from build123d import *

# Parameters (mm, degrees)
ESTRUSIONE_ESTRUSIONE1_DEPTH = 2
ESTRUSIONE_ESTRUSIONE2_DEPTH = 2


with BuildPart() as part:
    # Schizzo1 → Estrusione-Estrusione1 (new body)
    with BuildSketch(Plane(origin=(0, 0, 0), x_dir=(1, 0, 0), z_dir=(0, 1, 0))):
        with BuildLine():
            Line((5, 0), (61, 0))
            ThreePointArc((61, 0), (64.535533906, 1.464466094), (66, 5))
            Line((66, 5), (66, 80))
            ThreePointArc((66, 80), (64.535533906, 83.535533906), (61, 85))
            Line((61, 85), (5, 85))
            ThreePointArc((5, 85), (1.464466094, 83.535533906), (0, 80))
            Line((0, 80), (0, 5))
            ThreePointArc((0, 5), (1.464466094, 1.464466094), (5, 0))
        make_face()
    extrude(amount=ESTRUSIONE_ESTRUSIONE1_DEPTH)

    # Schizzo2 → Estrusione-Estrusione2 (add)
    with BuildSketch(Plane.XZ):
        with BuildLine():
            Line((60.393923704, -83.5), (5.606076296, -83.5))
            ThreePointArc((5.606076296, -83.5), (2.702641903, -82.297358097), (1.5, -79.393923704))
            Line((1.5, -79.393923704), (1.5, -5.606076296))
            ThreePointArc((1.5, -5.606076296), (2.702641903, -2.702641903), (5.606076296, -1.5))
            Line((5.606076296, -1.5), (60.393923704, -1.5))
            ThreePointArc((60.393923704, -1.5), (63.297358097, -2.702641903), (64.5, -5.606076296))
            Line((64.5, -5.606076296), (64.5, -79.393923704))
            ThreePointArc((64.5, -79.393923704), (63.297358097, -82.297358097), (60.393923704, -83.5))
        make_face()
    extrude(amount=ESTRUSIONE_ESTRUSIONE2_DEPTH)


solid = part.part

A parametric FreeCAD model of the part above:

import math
import FreeCAD as App
import Part
import Sketcher

V = App.Vector
Q = App.Units.Quantity

doc = App.newDocument("Part")
body = doc.addObject("PartDesign::Body", "Body")

# Sketch on XZ plane
sketch1 = doc.addObject("Sketcher::SketchObject", "Sketch")
body.addObject(sketch1)
sketch1.AttachmentSupport = (doc.XZ_Plane, [""])
sketch1.MapMode = "FlatFace"
sketch1.addGeometry([
    Part.LineSegment(V(5, 0, 0), V(61, 0, 0)),  # 0
    Part.ArcOfCircle(Part.Circle(V(61, -5, 0), V(0, 0, 1), 5), math.radians(0), math.radians(90)),  # 1
    Part.LineSegment(V(66, -5, 0), V(66, -80, 0)),  # 2
    Part.ArcOfCircle(Part.Circle(V(61, -80, 0), V(0, 0, 1), 5), math.radians(-90), math.radians(0)),  # 3
    Part.LineSegment(V(61, -85, 0), V(5, -85, 0)),  # 4
    Part.ArcOfCircle(Part.Circle(V(5, -80, 0), V(0, 0, 1), 5), math.radians(180), math.radians(270)),  # 5
    Part.LineSegment(V(0, -80, 0), V(0, -5, 0)),  # 6
    Part.ArcOfCircle(Part.Circle(V(5, -5, 0), V(0, 0, 1), 5), math.radians(90), math.radians(180)),  # 7
], False)
sketch1.addConstraint([
    Sketcher.Constraint("Tangent", 0, 2, 1, 2),
    Sketcher.Constraint("Tangent", 1, 1, 2, 1),
    Sketcher.Constraint("Tangent", 2, 2, 3, 2),
    Sketcher.Constraint("Tangent", 3, 1, 4, 1),
    Sketcher.Constraint("Tangent", 4, 2, 5, 2),
    Sketcher.Constraint("Tangent", 5, 1, 6, 1),
    Sketcher.Constraint("Tangent", 6, 2, 7, 2),
    Sketcher.Constraint("Tangent", 7, 1, 0, 1),
    Sketcher.Constraint("Horizontal", 0),
    Sketcher.Constraint("Vertical", 2),
    Sketcher.Constraint("Horizontal", 4),
    Sketcher.Constraint("Vertical", 6),
    Sketcher.Constraint("Equal", 1, 3),
    Sketcher.Constraint("Equal", 3, 5),
    Sketcher.Constraint("Equal", 5, 7),
    Sketcher.Constraint("PointOnObject", 0, 2, -1),
    Sketcher.Constraint("PointOnObject", 5, 1, -2),
    Sketcher.Constraint("Radius", 1, Q("5 mm")),
    Sketcher.Constraint("DistanceX", 0, 1, 0, 2, Q("56 mm")),
    Sketcher.Constraint("DistanceY", 2, 2, 2, 1, Q("75 mm")),
])
pad1 = doc.addObject("PartDesign::Pad", "Pad")
body.addObject(pad1)
pad1.Profile = sketch1
pad1.Length = 2
pad1.Reversed = True

# Sketch on XZ plane
sketch2 = doc.addObject("Sketcher::SketchObject", "Sketch001")
body.addObject(sketch2)
sketch2.AttachmentSupport = (doc.XZ_Plane, [""])
sketch2.MapMode = "FlatFace"
sketch2.addGeometry([
    Part.LineSegment(V(5.6, -83.5, 0), V(60.4, -83.5, 0)),  # 0
    Part.ArcOfCircle(Part.Circle(V(60.4, -79.4, 0), V(0, 0, 1), 4.1), math.radians(-90), math.radians(0)),  # 1
    Part.LineSegment(V(64.5, -79.4, 0), V(64.5, -5.6, 0)),  # 2
    Part.ArcOfCircle(Part.Circle(V(60.4, -5.6, 0), V(0, 0, 1), 4.1), math.radians(0), math.radians(90)),  # 3
    Part.LineSegment(V(60.4, -1.5, 0), V(5.6, -1.5, 0)),  # 4
    Part.ArcOfCircle(Part.Circle(V(5.6, -5.6, 0), V(0, 0, 1), 4.1), math.radians(90), math.radians(180)),  # 5
    Part.LineSegment(V(1.5, -5.6, 0), V(1.5, -79.4, 0)),  # 6
    Part.ArcOfCircle(Part.Circle(V(5.6, -79.4, 0), V(0, 0, 1), 4.1), math.radians(180), math.radians(270)),  # 7
], False)
sketch2.addConstraint([
    Sketcher.Constraint("Tangent", 0, 2, 1, 1),
    Sketcher.Constraint("Tangent", 1, 2, 2, 1),
    Sketcher.Constraint("Tangent", 2, 2, 3, 1),
    Sketcher.Constraint("Tangent", 3, 2, 4, 1),
    Sketcher.Constraint("Tangent", 4, 2, 5, 1),
    Sketcher.Constraint("Tangent", 5, 2, 6, 1),
    Sketcher.Constraint("Tangent", 6, 2, 7, 1),
    Sketcher.Constraint("Tangent", 7, 2, 0, 1),
    Sketcher.Constraint("Horizontal", 0),
    Sketcher.Constraint("Vertical", 2),
    Sketcher.Constraint("Horizontal", 4),
    Sketcher.Constraint("Vertical", 6),
    Sketcher.Constraint("Equal", 1, 3),
    Sketcher.Constraint("Equal", 3, 5),
    Sketcher.Constraint("Equal", 5, 7),
    Sketcher.Constraint("DistanceX", 5, 2, 2, 2, Q("63 mm")),
    Sketcher.Constraint("DistanceY", 0, 2, -1, 1, Q("83.5 mm")),
    Sketcher.Constraint("DistanceX", -1, 1, 1, 2, Q("64.5 mm")),
    Sketcher.Constraint("DistanceY", 3, 2, -1, 1, Q("1.5 mm")),
    Sketcher.Constraint("Radius", 1, Q("4.106076 mm")),
])
pad2 = doc.addObject("PartDesign::Pad", "Pad001")
body.addObject(pad2)
pad2.Profile = sketch2
pad2.Length = 2

doc.recompute()
